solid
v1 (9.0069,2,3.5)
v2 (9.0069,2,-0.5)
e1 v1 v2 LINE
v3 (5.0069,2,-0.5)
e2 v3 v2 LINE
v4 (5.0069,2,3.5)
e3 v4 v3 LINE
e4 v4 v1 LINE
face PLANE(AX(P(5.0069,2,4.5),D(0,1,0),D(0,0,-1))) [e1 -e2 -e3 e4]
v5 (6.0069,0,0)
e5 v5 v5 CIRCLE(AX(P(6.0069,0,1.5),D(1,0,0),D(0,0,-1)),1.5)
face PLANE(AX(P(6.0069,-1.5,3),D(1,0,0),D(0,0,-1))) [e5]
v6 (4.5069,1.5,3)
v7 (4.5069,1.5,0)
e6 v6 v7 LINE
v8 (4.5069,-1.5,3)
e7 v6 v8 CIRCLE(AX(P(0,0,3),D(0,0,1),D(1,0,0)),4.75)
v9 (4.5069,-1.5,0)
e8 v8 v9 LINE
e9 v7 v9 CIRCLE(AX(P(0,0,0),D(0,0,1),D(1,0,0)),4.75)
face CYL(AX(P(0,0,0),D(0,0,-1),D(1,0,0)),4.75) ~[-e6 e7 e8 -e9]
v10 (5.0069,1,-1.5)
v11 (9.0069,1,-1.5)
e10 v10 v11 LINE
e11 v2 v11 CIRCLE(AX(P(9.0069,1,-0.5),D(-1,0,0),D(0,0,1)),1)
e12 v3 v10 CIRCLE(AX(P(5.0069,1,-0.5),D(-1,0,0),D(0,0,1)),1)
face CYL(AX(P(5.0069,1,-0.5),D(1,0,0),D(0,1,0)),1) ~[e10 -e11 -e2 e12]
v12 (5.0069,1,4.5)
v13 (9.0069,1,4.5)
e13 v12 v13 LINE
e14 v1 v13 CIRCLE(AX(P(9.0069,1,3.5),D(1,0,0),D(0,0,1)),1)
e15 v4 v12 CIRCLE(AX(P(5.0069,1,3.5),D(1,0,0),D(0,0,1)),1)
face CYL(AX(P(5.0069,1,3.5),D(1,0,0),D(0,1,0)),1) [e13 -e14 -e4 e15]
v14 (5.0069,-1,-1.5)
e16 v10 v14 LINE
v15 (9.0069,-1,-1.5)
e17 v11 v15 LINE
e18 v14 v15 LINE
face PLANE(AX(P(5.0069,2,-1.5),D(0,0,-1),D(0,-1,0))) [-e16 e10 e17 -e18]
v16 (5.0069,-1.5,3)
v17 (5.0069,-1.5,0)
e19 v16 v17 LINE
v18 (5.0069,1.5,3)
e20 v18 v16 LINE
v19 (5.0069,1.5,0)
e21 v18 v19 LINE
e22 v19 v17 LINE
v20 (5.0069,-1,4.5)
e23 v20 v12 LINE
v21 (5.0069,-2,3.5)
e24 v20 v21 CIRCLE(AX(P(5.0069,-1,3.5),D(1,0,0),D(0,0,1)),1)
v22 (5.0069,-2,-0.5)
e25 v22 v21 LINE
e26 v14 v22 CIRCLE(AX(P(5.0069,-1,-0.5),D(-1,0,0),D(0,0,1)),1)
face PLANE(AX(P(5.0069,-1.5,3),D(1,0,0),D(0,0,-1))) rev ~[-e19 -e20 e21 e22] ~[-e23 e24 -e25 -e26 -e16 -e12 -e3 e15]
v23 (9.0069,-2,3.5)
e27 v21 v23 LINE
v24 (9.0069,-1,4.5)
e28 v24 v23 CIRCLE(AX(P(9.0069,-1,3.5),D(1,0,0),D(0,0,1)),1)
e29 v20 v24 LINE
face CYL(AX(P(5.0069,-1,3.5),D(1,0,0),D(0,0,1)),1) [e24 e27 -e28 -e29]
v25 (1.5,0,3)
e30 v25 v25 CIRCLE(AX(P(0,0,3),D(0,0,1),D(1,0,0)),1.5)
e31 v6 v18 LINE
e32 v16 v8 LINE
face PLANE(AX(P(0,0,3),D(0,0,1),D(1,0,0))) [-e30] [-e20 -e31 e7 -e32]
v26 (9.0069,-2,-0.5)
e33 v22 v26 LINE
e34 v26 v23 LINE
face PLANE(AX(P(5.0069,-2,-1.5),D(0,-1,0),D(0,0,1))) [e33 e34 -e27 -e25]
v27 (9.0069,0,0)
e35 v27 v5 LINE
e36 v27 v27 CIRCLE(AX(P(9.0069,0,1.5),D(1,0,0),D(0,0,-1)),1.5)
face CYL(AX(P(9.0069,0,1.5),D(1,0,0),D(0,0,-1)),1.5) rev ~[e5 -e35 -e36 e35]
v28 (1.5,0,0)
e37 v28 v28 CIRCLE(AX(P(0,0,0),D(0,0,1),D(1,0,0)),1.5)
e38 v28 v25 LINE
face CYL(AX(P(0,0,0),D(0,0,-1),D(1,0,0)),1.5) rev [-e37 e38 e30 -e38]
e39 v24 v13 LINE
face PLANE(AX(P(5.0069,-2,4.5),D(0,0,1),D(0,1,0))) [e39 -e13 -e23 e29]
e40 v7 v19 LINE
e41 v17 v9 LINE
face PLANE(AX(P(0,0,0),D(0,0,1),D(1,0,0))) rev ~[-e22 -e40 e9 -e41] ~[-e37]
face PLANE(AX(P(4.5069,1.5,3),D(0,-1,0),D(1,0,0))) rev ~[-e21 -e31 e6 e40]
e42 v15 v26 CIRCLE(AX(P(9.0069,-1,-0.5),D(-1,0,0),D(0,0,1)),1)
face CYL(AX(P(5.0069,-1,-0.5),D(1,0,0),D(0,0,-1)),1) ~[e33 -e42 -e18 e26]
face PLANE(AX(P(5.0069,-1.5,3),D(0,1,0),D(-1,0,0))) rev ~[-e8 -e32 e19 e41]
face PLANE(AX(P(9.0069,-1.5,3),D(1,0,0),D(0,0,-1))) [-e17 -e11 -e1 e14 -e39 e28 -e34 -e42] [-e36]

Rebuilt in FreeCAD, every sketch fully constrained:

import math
import FreeCAD as App
import Part
import Sketcher

V = App.Vector


def edges_at(feature, points):
    """Names of the edges that pass closest to the given points."""
    edges = feature.Shape.Edges
    near = lambda p: min(range(len(edges)), key=lambda i: edges[i].distToShape(Part.Vertex(*p))[0])
    return sorted({f"Edge{near(p) + 1}" for p in points})

doc = App.newDocument("Part")
body = doc.addObject("PartDesign::Body", "Body")

sketch1 = body.newObject("Sketcher::SketchObject", "Sketch")
sketch1.AttachmentSupport = (doc.getObject("XY_Plane"), [""])
sketch1.MapMode = "FlatFace"
sketch1.addGeometry([
    Part.Circle(V(0, 0, 0), V(0, 0, 1), 4.75),
    Part.Circle(V(0, 0, 0), V(0, 0, 1), 1.5),
], False)
sketch1.addConstraint([
    Sketcher.Constraint("Coincident", 0, 3, -1, 1),
    Sketcher.Constraint("Coincident", 1, 3, -1, 1),
    Sketcher.Constraint("Diameter", 1, 3.0),
    Sketcher.Constraint("Diameter", 0, 9.5),
])
pad1 = body.newObject("PartDesign::Pad", "Pad")
pad1.Profile = sketch1
pad1.Length = 3

sketch2 = body.newObject("Sketcher::SketchObject", "Sketch001")
sketch2.AttachmentSupport = (doc.getObject("XY_Plane"), [""])
sketch2.MapMode = "FlatFace"
sketch2.AttachmentOffset = App.Placement(V(0, 0, 3), App.Rotation())
sketch2.addGeometry([
    Part.ArcOfCircle(Part.Circle(V(0, 0, 0), V(0, 0, 1), 4.75), math.radians(-18.408629), math.radians(18.408629)),
    Part.LineSegment(V(4.5069, -1.5, 0), V(5.0069, -1.5, 0)),
    Part.LineSegment(V(5.0069, -1.5, 0), V(5.0069, 1.5, 0)),
    Part.LineSegment(V(5.0069, 1.5, 0), V(4.5069, 1.5, 0)),
], False)
sketch2.addConstraint([
    Sketcher.Constraint("Coincident", 0, 1, 1, 1),
    Sketcher.Constraint("Coincident", 1, 2, 2, 1),
    Sketcher.Constraint("Coincident", 2, 2, 3, 1),
    Sketcher.Constraint("Coincident", 3, 2, 0, 2),
    Sketcher.Constraint("Horizontal", 1),
    Sketcher.Constraint("Vertical", 2),
    Sketcher.Constraint("Horizontal", 3),
    Sketcher.Constraint("Coincident", 0, 3, -1, 1),
    Sketcher.Constraint("Vertical", 0, 1, 3, 2),
    Sketcher.Constraint("DistanceY", 2, 1, 2, 2, 3.0),
    Sketcher.Constraint("DistanceX", 1, 1, 1, 2, 0.5),
    Sketcher.Constraint("Radius", 0, 4.75),
])
pad2 = body.newObject("PartDesign::Pad", "Pad001")
pad2.Profile = sketch2
pad2.Length = 3
pad2.Reversed = True

sketch3 = body.newObject("Sketcher::SketchObject", "Sketch002")
sketch3.AttachmentSupport = (doc.getObject("YZ_Plane"), [""])
sketch3.MapMode = "FlatFace"
sketch3.AttachmentOffset = App.Placement(V(0, 0, 5.0069), App.Rotation())
sketch3.addGeometry([
    Part.LineSegment(V(2, -1.5, 0), V(2, 4.5, 0)),
    Part.LineSegment(V(2, 4.5, 0), V(-2, 4.5, 0)),
    Part.LineSegment(V(-2, 4.5, 0), V(-2, -1.5, 0)),
    Part.LineSegment(V(-2, -1.5, 0), V(2, -1.5, 0)),
], False)
sketch3.addConstraint([
    Sketcher.Constraint("Coincident", 0, 2, 1, 1),
    Sketcher.Constraint("Coincident", 1, 2, 2, 1),
    Sketcher.Constraint("Coincident", 2, 2, 3, 1),
    Sketcher.Constraint("Coincident", 3, 2, 0, 1),
    Sketcher.Constraint("Vertical", 0),
    Sketcher.Constraint("Horizontal", 1),
    Sketcher.Constraint("Vertical", 2),
    Sketcher.Constraint("Horizontal", 3),
    Sketcher.Constraint("DistanceX", 1, 2, 1, 1, 4.0),
    Sketcher.Constraint("DistanceY", 0, 1, 0, 2, 6.0),
    Sketcher.Constraint("DistanceX", -1, 1, 0, 2, 2.0),
    Sketcher.Constraint("DistanceY", -1, 1, 0, 2, 4.5),
])
pad3 = body.newObject("PartDesign::Pad", "Pad002")
pad3.Profile = sketch3
pad3.Length = 4
doc.recompute()

fillet = body.newObject("PartDesign::Fillet", "Fillet")
fillet.Base = (pad3, edges_at(pad3, [
    (7.007, 2, 4.5),
    (7.007, -2, 4.5),
    (7.007, -2, -1.5),
    (7.007, 2, -1.5),
]))
fillet.Radius = 1

sketch4 = body.newObject("Sketcher::SketchObject", "Sketch003")
sketch4.AttachmentSupport = (doc.getObject("YZ_Plane"), [""])
sketch4.MapMode = "FlatFace"
sketch4.AttachmentOffset = App.Placement(V(0, 0, 9.0069), App.Rotation())
sketch4.addGeometry(Part.Circle(V(0, 1.5, 0), V(0, 0, 1), 1.5), False)
sketch4.addConstraint([
    Sketcher.Constraint("PointOnObject", 0, 3, -2),
    Sketcher.Constraint("Diameter", 0, 3.0),
    Sketcher.Constraint("DistanceY", -1, 1, 0, 3, 1.5),
])
pocket1 = body.newObject("PartDesign::Pocket", "Pocket")
pocket1.Profile = sketch4
pocket1.Length = 3

doc.recompute()
